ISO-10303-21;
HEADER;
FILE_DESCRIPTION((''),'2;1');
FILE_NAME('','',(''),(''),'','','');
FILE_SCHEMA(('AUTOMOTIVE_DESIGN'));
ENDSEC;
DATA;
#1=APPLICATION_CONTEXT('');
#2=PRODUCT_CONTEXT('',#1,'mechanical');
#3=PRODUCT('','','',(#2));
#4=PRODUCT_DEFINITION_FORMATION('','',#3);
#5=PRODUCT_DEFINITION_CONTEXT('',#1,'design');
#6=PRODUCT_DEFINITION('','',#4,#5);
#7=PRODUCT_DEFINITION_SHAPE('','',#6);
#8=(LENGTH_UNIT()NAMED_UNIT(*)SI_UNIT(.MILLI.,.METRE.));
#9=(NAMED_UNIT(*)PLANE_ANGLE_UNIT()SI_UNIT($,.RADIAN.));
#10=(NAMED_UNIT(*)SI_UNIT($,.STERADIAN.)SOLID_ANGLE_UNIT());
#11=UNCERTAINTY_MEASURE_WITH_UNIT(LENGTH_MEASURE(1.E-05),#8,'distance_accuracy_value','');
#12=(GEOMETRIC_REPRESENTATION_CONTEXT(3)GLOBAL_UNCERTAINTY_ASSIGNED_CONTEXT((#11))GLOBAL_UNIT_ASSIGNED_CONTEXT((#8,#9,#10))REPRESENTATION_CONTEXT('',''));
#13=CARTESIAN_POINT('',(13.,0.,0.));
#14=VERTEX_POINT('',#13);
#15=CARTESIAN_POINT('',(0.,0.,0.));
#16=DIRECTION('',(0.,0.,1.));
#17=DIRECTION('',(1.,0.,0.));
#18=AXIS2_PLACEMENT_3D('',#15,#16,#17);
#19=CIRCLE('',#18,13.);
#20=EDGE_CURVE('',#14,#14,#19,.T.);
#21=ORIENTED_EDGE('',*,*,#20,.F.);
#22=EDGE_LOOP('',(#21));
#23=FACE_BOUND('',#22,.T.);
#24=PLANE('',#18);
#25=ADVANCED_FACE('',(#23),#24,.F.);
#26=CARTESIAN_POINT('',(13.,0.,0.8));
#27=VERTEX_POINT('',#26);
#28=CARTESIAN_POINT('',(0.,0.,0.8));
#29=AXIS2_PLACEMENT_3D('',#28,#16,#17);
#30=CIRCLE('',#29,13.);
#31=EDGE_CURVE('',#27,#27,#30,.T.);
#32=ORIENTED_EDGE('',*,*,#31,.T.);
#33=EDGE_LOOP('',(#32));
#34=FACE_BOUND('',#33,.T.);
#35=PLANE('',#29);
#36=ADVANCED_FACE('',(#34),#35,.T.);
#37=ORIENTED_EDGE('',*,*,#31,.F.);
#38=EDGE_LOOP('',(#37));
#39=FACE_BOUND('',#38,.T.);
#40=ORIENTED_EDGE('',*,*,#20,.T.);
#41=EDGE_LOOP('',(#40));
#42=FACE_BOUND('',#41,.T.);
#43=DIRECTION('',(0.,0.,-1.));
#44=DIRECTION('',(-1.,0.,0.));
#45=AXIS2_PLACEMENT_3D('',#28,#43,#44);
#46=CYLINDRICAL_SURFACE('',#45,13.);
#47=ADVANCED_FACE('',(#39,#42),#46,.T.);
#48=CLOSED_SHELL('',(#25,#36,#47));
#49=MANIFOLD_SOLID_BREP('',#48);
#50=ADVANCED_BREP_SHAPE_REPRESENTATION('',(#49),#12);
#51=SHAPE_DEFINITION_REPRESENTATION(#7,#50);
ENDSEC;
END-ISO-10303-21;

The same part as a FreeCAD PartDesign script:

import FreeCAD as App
import Part
import Sketcher

V = App.Vector
Q = App.Units.Quantity

doc = App.newDocument("Part")
body = doc.addObject("PartDesign::Body", "Body")

# Sketch on XY plane
sketch1 = body.newObject("Sketcher::SketchObject", "Sketch")
sketch1.AttachmentSupport = (doc.getObject("XY_Plane"), [""])
sketch1.MapMode = "FlatFace"
sketch1.addGeometry(Part.Circle(V(0, 0, 0), V(0, 0, 1), 13), False)
sketch1.addConstraint([
    Sketcher.Constraint("Coincident", 0, 3, -1, 1),
    Sketcher.Constraint("Diameter", 0, Q("26 mm")),
])
pad1 = body.newObject("PartDesign::Pad", "Pad")
pad1.Profile = sketch1
pad1.Length = 0.8

doc.recompute()
